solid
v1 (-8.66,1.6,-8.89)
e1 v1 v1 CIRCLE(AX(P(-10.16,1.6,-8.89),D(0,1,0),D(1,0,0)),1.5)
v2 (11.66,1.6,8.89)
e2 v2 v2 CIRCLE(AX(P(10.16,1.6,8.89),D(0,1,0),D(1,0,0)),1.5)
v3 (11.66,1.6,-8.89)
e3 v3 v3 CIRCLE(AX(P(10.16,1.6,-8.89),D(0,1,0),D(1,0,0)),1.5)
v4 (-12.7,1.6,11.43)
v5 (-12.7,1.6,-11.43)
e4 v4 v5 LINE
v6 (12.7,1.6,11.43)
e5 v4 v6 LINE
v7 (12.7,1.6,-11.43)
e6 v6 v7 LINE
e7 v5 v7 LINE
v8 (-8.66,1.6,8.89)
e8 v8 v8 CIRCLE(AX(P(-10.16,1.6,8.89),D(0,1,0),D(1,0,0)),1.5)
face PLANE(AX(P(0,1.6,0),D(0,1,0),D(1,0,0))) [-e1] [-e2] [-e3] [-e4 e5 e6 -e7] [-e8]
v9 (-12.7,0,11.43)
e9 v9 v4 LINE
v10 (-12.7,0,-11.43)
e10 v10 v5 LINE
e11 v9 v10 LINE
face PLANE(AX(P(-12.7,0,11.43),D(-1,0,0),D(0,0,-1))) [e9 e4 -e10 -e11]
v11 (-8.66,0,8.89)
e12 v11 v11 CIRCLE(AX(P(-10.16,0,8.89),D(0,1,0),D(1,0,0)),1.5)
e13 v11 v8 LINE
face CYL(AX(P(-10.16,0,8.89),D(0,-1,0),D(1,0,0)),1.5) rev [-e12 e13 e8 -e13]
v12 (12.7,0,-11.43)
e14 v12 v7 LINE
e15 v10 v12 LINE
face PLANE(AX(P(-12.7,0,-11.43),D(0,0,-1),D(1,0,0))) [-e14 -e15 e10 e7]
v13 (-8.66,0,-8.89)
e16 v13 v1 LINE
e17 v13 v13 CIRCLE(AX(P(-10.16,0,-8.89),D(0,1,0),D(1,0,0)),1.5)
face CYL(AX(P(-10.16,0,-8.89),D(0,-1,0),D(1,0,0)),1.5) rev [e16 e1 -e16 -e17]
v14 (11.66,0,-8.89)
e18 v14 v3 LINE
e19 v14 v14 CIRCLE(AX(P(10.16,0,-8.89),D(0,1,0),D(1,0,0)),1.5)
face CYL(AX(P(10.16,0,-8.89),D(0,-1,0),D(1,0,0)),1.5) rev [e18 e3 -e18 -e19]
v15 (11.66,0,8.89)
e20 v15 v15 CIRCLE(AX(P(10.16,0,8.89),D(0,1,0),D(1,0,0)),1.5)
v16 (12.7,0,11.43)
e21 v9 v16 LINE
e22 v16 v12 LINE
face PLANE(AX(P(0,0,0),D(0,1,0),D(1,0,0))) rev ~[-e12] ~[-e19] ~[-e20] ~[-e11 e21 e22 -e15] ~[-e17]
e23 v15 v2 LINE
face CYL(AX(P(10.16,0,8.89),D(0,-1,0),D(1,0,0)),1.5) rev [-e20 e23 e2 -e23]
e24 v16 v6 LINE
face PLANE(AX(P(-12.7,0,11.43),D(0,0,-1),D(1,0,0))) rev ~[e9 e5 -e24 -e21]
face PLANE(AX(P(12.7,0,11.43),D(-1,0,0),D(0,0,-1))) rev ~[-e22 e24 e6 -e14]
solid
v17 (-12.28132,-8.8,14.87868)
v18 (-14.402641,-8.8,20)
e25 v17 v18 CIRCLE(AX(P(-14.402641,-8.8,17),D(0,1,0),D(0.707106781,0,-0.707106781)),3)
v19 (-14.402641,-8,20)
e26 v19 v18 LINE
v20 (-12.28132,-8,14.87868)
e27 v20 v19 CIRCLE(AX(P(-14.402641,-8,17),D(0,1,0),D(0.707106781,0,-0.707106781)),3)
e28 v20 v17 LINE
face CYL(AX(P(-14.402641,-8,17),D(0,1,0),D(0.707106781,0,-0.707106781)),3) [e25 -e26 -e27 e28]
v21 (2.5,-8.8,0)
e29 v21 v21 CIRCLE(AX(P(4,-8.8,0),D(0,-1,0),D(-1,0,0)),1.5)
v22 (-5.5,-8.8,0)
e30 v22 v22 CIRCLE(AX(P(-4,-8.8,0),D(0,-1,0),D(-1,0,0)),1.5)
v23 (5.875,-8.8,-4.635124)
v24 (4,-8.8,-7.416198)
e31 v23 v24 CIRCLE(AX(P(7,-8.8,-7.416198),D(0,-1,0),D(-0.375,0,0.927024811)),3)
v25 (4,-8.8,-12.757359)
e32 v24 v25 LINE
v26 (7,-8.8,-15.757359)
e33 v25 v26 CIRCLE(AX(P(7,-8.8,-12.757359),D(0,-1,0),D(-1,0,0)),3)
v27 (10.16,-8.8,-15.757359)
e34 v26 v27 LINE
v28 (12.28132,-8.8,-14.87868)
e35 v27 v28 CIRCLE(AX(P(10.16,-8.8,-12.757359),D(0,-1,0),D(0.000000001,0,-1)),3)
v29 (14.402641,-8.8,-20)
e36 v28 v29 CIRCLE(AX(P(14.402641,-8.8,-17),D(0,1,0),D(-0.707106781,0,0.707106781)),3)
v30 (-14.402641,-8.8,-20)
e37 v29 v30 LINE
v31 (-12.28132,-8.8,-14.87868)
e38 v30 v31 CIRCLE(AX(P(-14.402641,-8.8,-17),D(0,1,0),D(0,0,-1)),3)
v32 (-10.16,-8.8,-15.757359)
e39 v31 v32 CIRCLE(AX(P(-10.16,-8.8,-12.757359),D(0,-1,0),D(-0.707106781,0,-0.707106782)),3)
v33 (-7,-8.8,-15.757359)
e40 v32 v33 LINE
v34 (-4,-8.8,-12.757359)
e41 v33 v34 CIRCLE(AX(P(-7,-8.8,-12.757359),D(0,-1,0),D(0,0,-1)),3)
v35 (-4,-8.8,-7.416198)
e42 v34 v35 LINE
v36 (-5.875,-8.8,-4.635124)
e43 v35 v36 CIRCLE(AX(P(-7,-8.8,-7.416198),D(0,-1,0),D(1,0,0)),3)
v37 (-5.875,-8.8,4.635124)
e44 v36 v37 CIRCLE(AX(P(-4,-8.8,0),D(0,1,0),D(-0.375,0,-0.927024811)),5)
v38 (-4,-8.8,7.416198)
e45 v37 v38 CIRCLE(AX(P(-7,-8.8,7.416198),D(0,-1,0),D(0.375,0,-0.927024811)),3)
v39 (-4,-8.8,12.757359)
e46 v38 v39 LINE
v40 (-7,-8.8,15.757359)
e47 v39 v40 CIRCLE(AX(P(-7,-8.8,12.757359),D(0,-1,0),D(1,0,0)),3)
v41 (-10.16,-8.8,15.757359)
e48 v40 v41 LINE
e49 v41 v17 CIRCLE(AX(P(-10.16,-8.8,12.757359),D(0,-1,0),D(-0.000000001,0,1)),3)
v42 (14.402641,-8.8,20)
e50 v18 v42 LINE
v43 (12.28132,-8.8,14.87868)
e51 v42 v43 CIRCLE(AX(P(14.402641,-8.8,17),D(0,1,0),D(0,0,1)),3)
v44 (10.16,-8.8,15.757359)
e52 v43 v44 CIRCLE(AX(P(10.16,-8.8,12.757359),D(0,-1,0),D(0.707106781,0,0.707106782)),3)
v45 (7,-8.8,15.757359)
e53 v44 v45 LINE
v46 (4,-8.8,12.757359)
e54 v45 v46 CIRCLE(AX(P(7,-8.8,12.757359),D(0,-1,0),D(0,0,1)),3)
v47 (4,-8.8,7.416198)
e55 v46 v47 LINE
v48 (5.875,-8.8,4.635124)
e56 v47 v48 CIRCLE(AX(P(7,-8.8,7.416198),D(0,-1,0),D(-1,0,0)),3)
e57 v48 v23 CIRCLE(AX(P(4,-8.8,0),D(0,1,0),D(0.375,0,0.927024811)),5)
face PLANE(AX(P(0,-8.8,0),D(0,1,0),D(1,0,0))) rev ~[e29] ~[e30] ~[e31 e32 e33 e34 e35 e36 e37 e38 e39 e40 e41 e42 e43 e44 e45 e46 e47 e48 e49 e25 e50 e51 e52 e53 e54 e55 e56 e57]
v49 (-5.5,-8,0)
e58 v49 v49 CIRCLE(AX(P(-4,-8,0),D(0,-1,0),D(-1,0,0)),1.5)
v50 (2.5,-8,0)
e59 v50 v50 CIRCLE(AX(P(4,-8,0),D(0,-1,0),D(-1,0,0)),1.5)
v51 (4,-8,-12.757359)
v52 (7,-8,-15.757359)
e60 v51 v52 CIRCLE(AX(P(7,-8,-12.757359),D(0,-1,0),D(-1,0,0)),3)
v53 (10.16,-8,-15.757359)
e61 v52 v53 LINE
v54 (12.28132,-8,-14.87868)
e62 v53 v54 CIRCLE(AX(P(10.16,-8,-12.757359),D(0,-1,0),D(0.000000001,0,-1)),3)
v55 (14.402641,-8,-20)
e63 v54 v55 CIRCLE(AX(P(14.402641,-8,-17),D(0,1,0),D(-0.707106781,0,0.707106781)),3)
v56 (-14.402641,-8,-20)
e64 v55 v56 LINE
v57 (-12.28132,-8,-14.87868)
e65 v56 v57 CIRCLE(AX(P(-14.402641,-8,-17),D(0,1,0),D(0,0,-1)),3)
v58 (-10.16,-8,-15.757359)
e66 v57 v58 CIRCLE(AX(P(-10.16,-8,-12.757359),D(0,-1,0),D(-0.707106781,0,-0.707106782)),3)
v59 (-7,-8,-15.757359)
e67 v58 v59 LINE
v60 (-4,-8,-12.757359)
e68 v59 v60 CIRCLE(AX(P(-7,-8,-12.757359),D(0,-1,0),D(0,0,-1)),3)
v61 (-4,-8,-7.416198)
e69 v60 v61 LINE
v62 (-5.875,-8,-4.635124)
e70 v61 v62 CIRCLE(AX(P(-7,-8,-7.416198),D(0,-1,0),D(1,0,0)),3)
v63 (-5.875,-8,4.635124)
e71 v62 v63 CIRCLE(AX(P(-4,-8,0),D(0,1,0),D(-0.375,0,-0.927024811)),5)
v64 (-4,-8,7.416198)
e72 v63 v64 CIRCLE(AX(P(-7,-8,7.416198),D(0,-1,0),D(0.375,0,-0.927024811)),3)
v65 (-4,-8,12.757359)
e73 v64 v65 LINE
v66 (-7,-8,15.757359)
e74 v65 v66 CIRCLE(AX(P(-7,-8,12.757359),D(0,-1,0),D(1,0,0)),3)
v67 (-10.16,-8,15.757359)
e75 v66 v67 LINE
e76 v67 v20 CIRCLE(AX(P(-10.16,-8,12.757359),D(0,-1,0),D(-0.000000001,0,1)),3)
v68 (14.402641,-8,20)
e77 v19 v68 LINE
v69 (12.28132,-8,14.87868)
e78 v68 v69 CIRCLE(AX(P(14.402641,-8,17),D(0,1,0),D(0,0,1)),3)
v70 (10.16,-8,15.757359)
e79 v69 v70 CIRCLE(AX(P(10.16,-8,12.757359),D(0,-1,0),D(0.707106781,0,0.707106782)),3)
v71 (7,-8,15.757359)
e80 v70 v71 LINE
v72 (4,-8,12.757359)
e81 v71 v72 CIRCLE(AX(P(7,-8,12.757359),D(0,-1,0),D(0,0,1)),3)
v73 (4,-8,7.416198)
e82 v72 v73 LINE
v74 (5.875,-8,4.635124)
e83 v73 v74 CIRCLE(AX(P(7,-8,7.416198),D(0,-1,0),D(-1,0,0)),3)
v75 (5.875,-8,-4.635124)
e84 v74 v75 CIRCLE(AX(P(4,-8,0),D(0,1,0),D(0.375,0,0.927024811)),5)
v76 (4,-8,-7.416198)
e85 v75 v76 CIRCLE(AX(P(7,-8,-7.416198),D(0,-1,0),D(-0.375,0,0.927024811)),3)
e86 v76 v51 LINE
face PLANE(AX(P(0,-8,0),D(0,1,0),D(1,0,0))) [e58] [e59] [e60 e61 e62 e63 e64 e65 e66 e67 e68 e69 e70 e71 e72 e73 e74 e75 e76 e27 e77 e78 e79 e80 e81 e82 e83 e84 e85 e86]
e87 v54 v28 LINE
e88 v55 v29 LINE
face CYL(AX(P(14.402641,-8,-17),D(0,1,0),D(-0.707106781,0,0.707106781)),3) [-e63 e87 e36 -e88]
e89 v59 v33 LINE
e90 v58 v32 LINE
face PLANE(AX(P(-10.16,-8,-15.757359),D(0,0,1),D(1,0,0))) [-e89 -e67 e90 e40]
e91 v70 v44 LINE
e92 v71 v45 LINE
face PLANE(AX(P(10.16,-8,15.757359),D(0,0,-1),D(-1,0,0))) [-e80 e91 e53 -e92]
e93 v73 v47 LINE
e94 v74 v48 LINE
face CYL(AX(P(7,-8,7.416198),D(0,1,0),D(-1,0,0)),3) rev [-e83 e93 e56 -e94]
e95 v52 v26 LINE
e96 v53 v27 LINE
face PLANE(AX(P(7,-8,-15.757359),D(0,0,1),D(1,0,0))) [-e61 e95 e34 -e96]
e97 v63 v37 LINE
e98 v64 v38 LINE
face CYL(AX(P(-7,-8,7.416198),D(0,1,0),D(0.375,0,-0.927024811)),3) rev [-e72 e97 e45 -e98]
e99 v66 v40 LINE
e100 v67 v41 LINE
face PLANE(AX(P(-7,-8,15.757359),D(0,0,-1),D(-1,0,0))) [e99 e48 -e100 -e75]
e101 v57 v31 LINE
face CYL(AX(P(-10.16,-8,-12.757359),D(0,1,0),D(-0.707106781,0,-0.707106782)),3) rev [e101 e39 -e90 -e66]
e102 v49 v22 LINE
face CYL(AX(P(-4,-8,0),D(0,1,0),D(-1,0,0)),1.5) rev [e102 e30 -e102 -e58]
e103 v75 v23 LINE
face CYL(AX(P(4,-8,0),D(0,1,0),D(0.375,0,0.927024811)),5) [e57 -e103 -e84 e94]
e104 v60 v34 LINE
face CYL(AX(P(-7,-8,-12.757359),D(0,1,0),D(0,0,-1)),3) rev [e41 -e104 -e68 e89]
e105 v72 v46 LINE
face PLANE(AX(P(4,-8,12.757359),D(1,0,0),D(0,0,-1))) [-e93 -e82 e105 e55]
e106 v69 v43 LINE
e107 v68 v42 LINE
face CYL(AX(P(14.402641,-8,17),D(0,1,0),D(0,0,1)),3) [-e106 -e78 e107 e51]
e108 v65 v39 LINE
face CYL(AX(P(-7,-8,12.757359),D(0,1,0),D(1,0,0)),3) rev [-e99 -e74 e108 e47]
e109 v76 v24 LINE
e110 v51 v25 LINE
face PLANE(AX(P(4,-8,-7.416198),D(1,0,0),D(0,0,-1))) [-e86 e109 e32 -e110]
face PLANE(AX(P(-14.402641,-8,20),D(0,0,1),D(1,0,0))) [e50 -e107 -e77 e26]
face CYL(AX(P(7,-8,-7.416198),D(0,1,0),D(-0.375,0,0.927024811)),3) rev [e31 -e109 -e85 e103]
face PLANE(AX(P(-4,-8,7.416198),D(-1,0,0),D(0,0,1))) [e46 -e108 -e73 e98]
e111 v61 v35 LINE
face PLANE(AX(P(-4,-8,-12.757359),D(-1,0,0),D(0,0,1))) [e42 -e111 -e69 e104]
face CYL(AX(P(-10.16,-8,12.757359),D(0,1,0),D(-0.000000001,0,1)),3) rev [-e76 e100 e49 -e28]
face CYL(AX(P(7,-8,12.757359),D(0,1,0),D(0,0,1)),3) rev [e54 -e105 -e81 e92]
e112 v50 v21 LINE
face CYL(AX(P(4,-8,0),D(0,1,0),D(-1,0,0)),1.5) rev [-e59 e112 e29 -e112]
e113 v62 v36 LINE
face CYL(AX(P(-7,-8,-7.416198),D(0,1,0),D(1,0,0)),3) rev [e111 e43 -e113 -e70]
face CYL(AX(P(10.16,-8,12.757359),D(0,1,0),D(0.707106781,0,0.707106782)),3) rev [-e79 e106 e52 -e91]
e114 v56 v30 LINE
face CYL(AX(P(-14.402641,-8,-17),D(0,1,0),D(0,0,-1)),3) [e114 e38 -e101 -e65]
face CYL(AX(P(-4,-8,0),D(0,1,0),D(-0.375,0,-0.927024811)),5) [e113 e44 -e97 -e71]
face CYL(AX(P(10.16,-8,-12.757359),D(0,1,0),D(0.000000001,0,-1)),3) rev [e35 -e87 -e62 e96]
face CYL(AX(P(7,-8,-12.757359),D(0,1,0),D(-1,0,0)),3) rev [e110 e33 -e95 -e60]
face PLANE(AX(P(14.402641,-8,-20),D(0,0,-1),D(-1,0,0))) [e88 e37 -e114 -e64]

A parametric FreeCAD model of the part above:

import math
import FreeCAD as App
import Part
import Sketcher

V = App.Vector

doc = App.newDocument("Part")
body = doc.addObject("PartDesign::Body", "Body")

sketch1 = body.newObject("Sketcher::SketchObject", "Sketch")
sketch1.AttachmentSupport = (doc.getObject("XZ_Plane"), [""])
sketch1.MapMode = "FlatFace"
sketch1.addGeometry(Part.LineSegment(V(-12.7, -11.4, 0), V(-12.7, 11.4, 0)), False)
sketch1.addGeometry(Part.LineSegment(V(-12.7, 11.4, 0), V(12.7, 11.4, 0)), False)
sketch1.addGeometry(Part.LineSegment(V(12.7, 11.4, 0), V(12.7, -11.4, 0)), False)
sketch1.addGeometry(Part.LineSegment(V(12.7, -11.4, 0), V(-12.7, -11.4, 0)), False)
sketch1.addGeometry(Part.Circle(V(-10.2, 8.9, 0), V(0, 0, 1), 1.5), False)
sketch1.addGeometry(Part.Circle(V(10.2, 8.9, 0), V(0, 0, 1), 1.5), False)
sketch1.addGeometry(Part.Circle(V(-10.2, -8.9, 0), V(0, 0, 1), 1.5), False)
sketch1.addGeometry(Part.Circle(V(10.2, -8.9, 0), V(0, 0, 1), 1.5), False)
sketch1.addConstraint(Sketcher.Constraint("Coincident", 0, 2, 1, 1))
sketch1.addConstraint(Sketcher.Constraint("Coincident", 1, 2, 2, 1))
sketch1.addConstraint(Sketcher.Constraint("Coincident", 2, 2, 3, 1))
sketch1.addConstraint(Sketcher.Constraint("Coincident", 3, 2, 0, 1))
sketch1.addConstraint(Sketcher.Constraint("Vertical", 0))
sketch1.addConstraint(Sketcher.Constraint("Horizontal", 1))
sketch1.addConstraint(Sketcher.Constraint("Vertical", 2))
sketch1.addConstraint(Sketcher.Constraint("Horizontal", 3))
sketch1.addConstraint(Sketcher.Constraint("Equal", 4, 5))
sketch1.addConstraint(Sketcher.Constraint("Equal", 5, 6))
sketch1.addConstraint(Sketcher.Constraint("Equal", 6, 7))
sketch1.addConstraint(Sketcher.Constraint("Symmetric", 5, 3, 6, 3, -1, 1))
sketch1.addConstraint(Sketcher.Constraint("Symmetric", 4, 3, 7, 3, -1, 1))
sketch1.addConstraint(Sketcher.Constraint("Symmetric", 0, 2, 2, 2, -1, 1))
sketch1.addConstraint(Sketcher.Constraint("Symmetric", 4, 3, 5, 3, -2))
sketch1.addConstraint(Sketcher.Constraint("Diameter", 4, 3.0))
sketch1.addConstraint(Sketcher.Constraint("DistanceX", 1, 1, 1, 2, 25.4))
sketch1.addConstraint(Sketcher.Constraint("DistanceY", 0, 1, 0, 2, 22.86))
sketch1.addConstraint(Sketcher.Constraint("DistanceX", 4, 3, -1, 1, 10.16))
sketch1.addConstraint(Sketcher.Constraint("DistanceY", -1, 1, 4, 3, 8.89))
pad1 = body.newObject("PartDesign::Pad", "Pad")
pad1.Profile = sketch1
pad1.Length = 1.6
pad1.Reversed = True
body2 = doc.addObject("PartDesign::Body", "Body001")

sketch2 = body2.newObject("Sketcher::SketchObject", "Sketch001")
sketch2.AttachmentSupport = (doc.getObject("XZ_Plane001"), [""])
sketch2.MapMode = "FlatFace"
sketch2.AttachmentOffset = App.Placement(V(0, 0, 8), App.Rotation())
sketch2.addGeometry(Part.LineSegment(V(4, -12.8, 0), V(4, -7.4, 0)), False)
sketch2.addGeometry(Part.ArcOfCircle(Part.Circle(V(7, -7.4, 0), V(0, 0, 1), 3), math.radians(112), math.radians(180)), False)
sketch2.addGeometry(Part.ArcOfCircle(Part.Circle(V(4, 0, 0), V(0, 0, 1), 5), math.radians(-68), math.radians(68)), False)
sketch2.addGeometry(Part.ArcOfCircle(Part.Circle(V(7, 7.4, 0), V(0, 0, 1), 3), math.radians(180), math.radians(248)), False)
sketch2.addGeometry(Part.LineSegment(V(4, 7.4, 0), V(4, 12.8, 0)), False)
sketch2.addGeometry(Part.ArcOfCircle(Part.Circle(V(7, 12.8, 0), V(0, 0, 1), 3), math.radians(90), math.radians(180)), False)
sketch2.addGeometry(Part.LineSegment(V(7, 15.8, 0), V(10.2, 15.8, 0)), False)
sketch2.addGeometry(Part.ArcOfCircle(Part.Circle(V(10.2, 12.8, 0), V(0, 0, 1), 3), math.radians(45), math.radians(90)), False)
sketch2.addGeometry(Part.ArcOfCircle(Part.Circle(V(14.4, 17, 0), V(0, 0, 1), 3), math.radians(-135), math.radians(90)), False)
sketch2.addGeometry(Part.LineSegment(V(14.4, 20, 0), V(-14.4, 20, 0)), False)
sketch2.addGeometry(Part.ArcOfCircle(Part.Circle(V(-14.4, 17, 0), V(0, 0, 1), 3), math.radians(90), math.radians(315)), False)
sketch2.addGeometry(Part.ArcOfCircle(Part.Circle(V(-10.2, 12.8, 0), V(0, 0, 1), 3), math.radians(90), math.radians(135)), False)
sketch2.addGeometry(Part.LineSegment(V(-10.2, 15.8, 0), V(-7, 15.8, 0)), False)
sketch2.addGeometry(Part.ArcOfCircle(Part.Circle(V(-7, 12.8, 0), V(0, 0, 1), 3), math.radians(0), math.radians(90)), False)
sketch2.addGeometry(Part.LineSegment(V(-4, 12.8, 0), V(-4, 7.4, 0)), False)
sketch2.addGeometry(Part.ArcOfCircle(Part.Circle(V(-7, 7.4, 0), V(0, 0, 1), 3), math.radians(-68), math.radians(0)), False)
sketch2.addGeometry(Part.ArcOfCircle(Part.Circle(V(-4, 0, 0), V(0, 0, 1), 5), math.radians(112), math.radians(248)), False)
sketch2.addGeometry(Part.ArcOfCircle(Part.Circle(V(-7, -7.4, 0), V(0, 0, 1), 3), math.radians(0), math.radians(68)), False)
sketch2.addGeometry(Part.LineSegment(V(-4, -7.4, 0), V(-4, -12.8, 0)), False)
sketch2.addGeometry(Part.ArcOfCircle(Part.Circle(V(-7, -12.8, 0), V(0, 0, 1), 3), math.radians(-90), math.radians(0)), False)
sketch2.addGeometry(Part.LineSegment(V(-7, -15.8, 0), V(-10.2, -15.8, 0)), False)
sketch2.addGeometry(Part.ArcOfCircle(Part.Circle(V(-10.2, -12.8, 0), V(0, 0, 1), 3), math.radians(-135), math.radians(-90)), False)
sketch2.addGeometry(Part.ArcOfCircle(Part.Circle(V(-14.4, -17, 0), V(0, 0, 1), 3), math.radians(45), math.radians(270)), False)
sketch2.addGeometry(Part.LineSegment(V(-14.4, -20, 0), V(14.4, -20, 0)), False)
sketch2.addGeometry(Part.ArcOfCircle(Part.Circle(V(14.4, -17, 0), V(0, 0, 1), 3), math.radians(-90), math.radians(135)), False)
sketch2.addGeometry(Part.ArcOfCircle(Part.Circle(V(10.2, -12.8, 0), V(0, 0, 1), 3), math.radians(-90), math.radians(-45)), False)
sketch2.addGeometry(Part.LineSegment(V(10.2, -15.8, 0), V(7, -15.8, 0)), False)
sketch2.addGeometry(Part.ArcOfCircle(Part.Circle(V(7, -12.8, 0), V(0, 0, 1), 3), math.radians(180), math.radians(270)), False)
sketch2.addGeometry(Part.Circle(V(-4, 0, 0), V(0, 0, 1), 1.5), False)
sketch2.addGeometry(Part.Circle(V(4, 0, 0), V(0, 0, 1), 1.5), False)
sketch2.addConstraint(Sketcher.Constraint("Tangent", 0, 2, 1, 2))
sketch2.addConstraint(Sketcher.Constraint("Tangent", 1, 1, 2, 1))
sketch2.addConstraint(Sketcher.Constraint("Tangent", 2, 2, 3, 2))
sketch2.addConstraint(Sketcher.Constraint("Tangent", 3, 1, 4, 1))
sketch2.addConstraint(Sketcher.Constraint("Tangent", 4, 2, 5, 2))
sketch2.addConstraint(Sketcher.Constraint("Tangent", 5, 1, 6, 1))
sketch2.addConstraint(Sketcher.Constraint("Tangent", 6, 2, 7, 2))
sketch2.addConstraint(Sketcher.Constraint("Tangent", 7, 1, 8, 1))
sketch2.addConstraint(Sketcher.Constraint("Tangent", 8, 2, 9, 1))
sketch2.addConstraint(Sketcher.Constraint("Tangent", 9, 2, 10, 1))
sketch2.addConstraint(Sketcher.Constraint("Tangent", 10, 2, 11, 2))
sketch2.addConstraint(Sketcher.Constraint("Tangent", 11, 1, 12, 1))
sketch2.addConstraint(Sketcher.Constraint("Tangent", 12, 2, 13, 2))
sketch2.addConstraint(Sketcher.Constraint("Tangent", 13, 1, 14, 1))
sketch2.addConstraint(Sketcher.Constraint("Tangent", 14, 2, 15, 2))
sketch2.addConstraint(Sketcher.Constraint("Tangent", 15, 1, 16, 1))
sketch2.addConstraint(Sketcher.Constraint("Tangent", 16, 2, 17, 2))
sketch2.addConstraint(Sketcher.Constraint("Tangent", 17, 1, 18, 1))
sketch2.addConstraint(Sketcher.Constraint("Tangent", 18, 2, 19, 2))
sketch2.addConstraint(Sketcher.Constraint("Tangent", 19, 1, 20, 1))
sketch2.addConstraint(Sketcher.Constraint("Tangent", 20, 2, 21, 2))
sketch2.addConstraint(Sketcher.Constraint("Tangent", 21, 1, 22, 1))
sketch2.addConstraint(Sketcher.Constraint("Tangent", 22, 2, 23, 1))
sketch2.addConstraint(Sketcher.Constraint("Tangent", 23, 2, 24, 1))
sketch2.addConstraint(Sketcher.Constraint("Tangent", 24, 2, 25, 2))
sketch2.addConstraint(Sketcher.Constraint("Tangent", 25, 1, 26, 1))
sketch2.addConstraint(Sketcher.Constraint("Tangent", 26, 2, 27, 2))
sketch2.addConstraint(Sketcher.Constraint("Tangent", 27, 1, 0, 1))
sketch2.addConstraint(Sketcher.Constraint("Vertical", 0))
sketch2.addConstraint(Sketcher.Constraint("Vertical", 4))
sketch2.addConstraint(Sketcher.Constraint("Horizontal", 6))
sketch2.addConstraint(Sketcher.Constraint("Horizontal", 9))
sketch2.addConstraint(Sketcher.Constraint("Horizontal", 12))
sketch2.addConstraint(Sketcher.Constraint("Vertical", 14))
sketch2.addConstraint(Sketcher.Constraint("Vertical", 18))
sketch2.addConstraint(Sketcher.Constraint("Horizontal", 20))
sketch2.addConstraint(Sketcher.Constraint("Horizontal", 23))
sketch2.addConstraint(Sketcher.Constraint("Horizontal", 26))
sketch2.addConstraint(Sketcher.Constraint("Coincident", 28, 3, 16, 3))
sketch2.addConstraint(Sketcher.Constraint("Coincident", 29, 3, 2, 3))
sketch2.addConstraint(Sketcher.Constraint("Equal", 1, 3))
sketch2.addConstraint(Sketcher.Constraint("Equal", 3, 5))
sketch2.addConstraint(Sketcher.Constraint("Equal", 5, 7))
sketch2.addConstraint(Sketcher.Constraint("Equal", 7, 8))
sketch2.addConstraint(Sketcher.Constraint("Equal", 8, 10))
sketch2.addConstraint(Sketcher.Constraint("Equal", 10, 11))
sketch2.addConstraint(Sketcher.Constraint("Equal", 11, 13))
sketch2.addConstraint(Sketcher.Constraint("Equal", 13, 15))
sketch2.addConstraint(Sketcher.Constraint("Equal", 2, 16))
sketch2.addConstraint(Sketcher.Constraint("Equal", 15, 17))
sketch2.addConstraint(Sketcher.Constraint("Equal", 17, 19))
sketch2.addConstraint(Sketcher.Constraint("Equal", 19, 21))
sketch2.addConstraint(Sketcher.Constraint("Equal", 21, 22))
sketch2.addConstraint(Sketcher.Constraint("Equal", 22, 24))
sketch2.addConstraint(Sketcher.Constraint("Equal", 24, 25))
sketch2.addConstraint(Sketcher.Constraint("Equal", 25, 27))
sketch2.addConstraint(Sketcher.Constraint("Equal", 28, 29))
sketch2.addConstraint(Sketcher.Constraint("Symmetric", 1, 3, 15, 3, -1, 1))
sketch2.addConstraint(Sketcher.Constraint("Symmetric", 3, 3, 17, 3, -1, 1))
sketch2.addConstraint(Sketcher.Constraint("Symmetric", 7, 3, 21, 3, -1, 1))
sketch2.addConstraint(Sketcher.Constraint("Symmetric", 10, 3, 24, 3, -1, 1))
sketch2.addConstraint(Sketcher.Constraint("Symmetric", 7, 3, 11, 3, -2))
sketch2.addConstraint(Sketcher.Constraint("Symmetric", 3, 3, 15, 3, -2))
sketch2.addConstraint(Sketcher.Constraint("Horizontal", 21, 3, 25, 3))
sketch2.addConstraint(Sketcher.Constraint("Vertical", 29, 3, 0, 2))
sketch2.addConstraint(Sketcher.Constraint("Diameter", 28, 3.0))
sketch2.addConstraint(Sketcher.Constraint("Radius", 1, 3.0))
sketch2.addConstraint(Sketcher.Constraint("Radius", 2, 5.0))
sketch2.addConstraint(Sketcher.Constraint("DistanceX", -1, 1, 1, 3, 7.0))
sketch2.addConstraint(Sketcher.Constraint("DistanceY", -1, 1, 8, 3, 17.0))
sketch2.addConstraint(Sketcher.Constraint("DistanceX", 6, 1, 6, 2, 3.16))
sketch2.addConstraint(Sketcher.Constraint("DistanceX", 9, 2, 9, 1, 28.805281))
pad2 = body2.newObject("PartDesign::Pad", "Pad001")
pad2.Profile = sketch2
pad2.Length = 0.8

doc.recompute()
